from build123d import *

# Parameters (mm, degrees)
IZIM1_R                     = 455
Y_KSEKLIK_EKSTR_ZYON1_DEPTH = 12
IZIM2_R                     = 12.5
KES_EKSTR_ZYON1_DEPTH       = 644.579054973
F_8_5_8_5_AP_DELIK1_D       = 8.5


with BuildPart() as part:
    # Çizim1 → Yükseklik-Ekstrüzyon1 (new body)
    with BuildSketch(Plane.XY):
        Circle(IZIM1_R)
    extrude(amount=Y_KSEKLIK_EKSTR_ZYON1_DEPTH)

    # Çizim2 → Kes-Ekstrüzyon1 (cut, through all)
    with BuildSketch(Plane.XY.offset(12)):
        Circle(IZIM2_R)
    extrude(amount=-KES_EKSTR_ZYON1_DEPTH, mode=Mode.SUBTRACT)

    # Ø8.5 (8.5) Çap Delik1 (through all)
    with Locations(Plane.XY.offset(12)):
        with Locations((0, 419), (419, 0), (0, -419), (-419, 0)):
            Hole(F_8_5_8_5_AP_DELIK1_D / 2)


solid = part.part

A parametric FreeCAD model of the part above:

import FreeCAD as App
import Part
import Sketcher
from FreeCAD import Vector

doc = App.newDocument("Part")
body = doc.addObject("PartDesign::Body", "Body")

# Sketch on XY plane
sketch1 = body.newObject("Sketcher::SketchObject", "Sketch")
sketch1.AttachmentSupport = (doc.getObject("XY_Plane"), [""])
sketch1.MapMode = "FlatFace"
sketch1.addGeometry(Part.Circle(Vector(0, 0, 0), Vector(0, 0, 1), 455), False)
sketch1.addConstraint([
    Sketcher.Constraint("Coincident", 0, 3, -1, 1),
    Sketcher.Constraint("Diameter", 0, 910.0),
])
pad1 = body.newObject("PartDesign::Pad", "Pad")
pad1.Profile = sketch1
pad1.Length = 12

# Sketch on XY plane
sketch2 = body.newObject("Sketcher::SketchObject", "Sketch001")
sketch2.AttachmentSupport = (doc.getObject("XY_Plane"), [""])
sketch2.MapMode = "FlatFace"
sketch2.AttachmentOffset = App.Placement(Vector(0, 0, 12), App.Rotation())
sketch2.addGeometry(Part.Circle(Vector(0, 0, 0), Vector(0, 0, 1), 12), False)
sketch2.addConstraint([
    Sketcher.Constraint("Coincident", 0, 3, -1, 1),
    Sketcher.Constraint("Diameter", 0, 25.0),
])
pocket1 = body.newObject("PartDesign::Pocket", "Pocket")
pocket1.Profile = sketch2
pocket1.Type = "ThroughAll"

# Sketch on XY plane
sketch3 = body.newObject("Sketcher::SketchObject", "Sketch002")
sketch3.AttachmentSupport = (doc.getObject("XY_Plane"), [""])
sketch3.MapMode = "FlatFace"
sketch3.AttachmentOffset = App.Placement(Vector(0, 0, 12), App.Rotation())
sketch3.addGeometry([
    Part.Circle(Vector(0, 419, 0), Vector(0, 0, 1), 4.2),
    Part.Circle(Vector(419, 0, 0), Vector(0, 0, 1), 4.2),
    Part.Circle(Vector(0, -419, 0), Vector(0, 0, 1), 4.2),
    Part.Circle(Vector(-419, 0, 0), Vector(0, 0, 1), 4.2),
], False)
sketch3.addConstraint([
    Sketcher.Constraint("Equal", 0, 1),
    Sketcher.Constraint("Equal", 1, 2),
    Sketcher.Constraint("Equal", 2, 3),
    Sketcher.Constraint("Symmetric", 0, 3, 2, 3, -1, 1),
    Sketcher.Constraint("Symmetric", 1, 3, 3, 3, -1, 1),
    Sketcher.Constraint("PointOnObject", 0, 3, -2),
    Sketcher.Constraint("PointOnObject", 1, 3, -1),
    Sketcher.Constraint("Diameter", 0, 8.5),
    Sketcher.Constraint("DistanceY", -1, 1, 0, 3, 419.0),
    Sketcher.Constraint("DistanceX", -1, 1, 1, 3, 419.0),
])
doc.recompute()
hole = body.newObject("PartDesign::Hole", "Hole")
hole.Profile = sketch3
hole.ThreadType = "None"
hole.Diameter = 8.5
hole.DepthType = "ThroughAll"

doc.recompute()
